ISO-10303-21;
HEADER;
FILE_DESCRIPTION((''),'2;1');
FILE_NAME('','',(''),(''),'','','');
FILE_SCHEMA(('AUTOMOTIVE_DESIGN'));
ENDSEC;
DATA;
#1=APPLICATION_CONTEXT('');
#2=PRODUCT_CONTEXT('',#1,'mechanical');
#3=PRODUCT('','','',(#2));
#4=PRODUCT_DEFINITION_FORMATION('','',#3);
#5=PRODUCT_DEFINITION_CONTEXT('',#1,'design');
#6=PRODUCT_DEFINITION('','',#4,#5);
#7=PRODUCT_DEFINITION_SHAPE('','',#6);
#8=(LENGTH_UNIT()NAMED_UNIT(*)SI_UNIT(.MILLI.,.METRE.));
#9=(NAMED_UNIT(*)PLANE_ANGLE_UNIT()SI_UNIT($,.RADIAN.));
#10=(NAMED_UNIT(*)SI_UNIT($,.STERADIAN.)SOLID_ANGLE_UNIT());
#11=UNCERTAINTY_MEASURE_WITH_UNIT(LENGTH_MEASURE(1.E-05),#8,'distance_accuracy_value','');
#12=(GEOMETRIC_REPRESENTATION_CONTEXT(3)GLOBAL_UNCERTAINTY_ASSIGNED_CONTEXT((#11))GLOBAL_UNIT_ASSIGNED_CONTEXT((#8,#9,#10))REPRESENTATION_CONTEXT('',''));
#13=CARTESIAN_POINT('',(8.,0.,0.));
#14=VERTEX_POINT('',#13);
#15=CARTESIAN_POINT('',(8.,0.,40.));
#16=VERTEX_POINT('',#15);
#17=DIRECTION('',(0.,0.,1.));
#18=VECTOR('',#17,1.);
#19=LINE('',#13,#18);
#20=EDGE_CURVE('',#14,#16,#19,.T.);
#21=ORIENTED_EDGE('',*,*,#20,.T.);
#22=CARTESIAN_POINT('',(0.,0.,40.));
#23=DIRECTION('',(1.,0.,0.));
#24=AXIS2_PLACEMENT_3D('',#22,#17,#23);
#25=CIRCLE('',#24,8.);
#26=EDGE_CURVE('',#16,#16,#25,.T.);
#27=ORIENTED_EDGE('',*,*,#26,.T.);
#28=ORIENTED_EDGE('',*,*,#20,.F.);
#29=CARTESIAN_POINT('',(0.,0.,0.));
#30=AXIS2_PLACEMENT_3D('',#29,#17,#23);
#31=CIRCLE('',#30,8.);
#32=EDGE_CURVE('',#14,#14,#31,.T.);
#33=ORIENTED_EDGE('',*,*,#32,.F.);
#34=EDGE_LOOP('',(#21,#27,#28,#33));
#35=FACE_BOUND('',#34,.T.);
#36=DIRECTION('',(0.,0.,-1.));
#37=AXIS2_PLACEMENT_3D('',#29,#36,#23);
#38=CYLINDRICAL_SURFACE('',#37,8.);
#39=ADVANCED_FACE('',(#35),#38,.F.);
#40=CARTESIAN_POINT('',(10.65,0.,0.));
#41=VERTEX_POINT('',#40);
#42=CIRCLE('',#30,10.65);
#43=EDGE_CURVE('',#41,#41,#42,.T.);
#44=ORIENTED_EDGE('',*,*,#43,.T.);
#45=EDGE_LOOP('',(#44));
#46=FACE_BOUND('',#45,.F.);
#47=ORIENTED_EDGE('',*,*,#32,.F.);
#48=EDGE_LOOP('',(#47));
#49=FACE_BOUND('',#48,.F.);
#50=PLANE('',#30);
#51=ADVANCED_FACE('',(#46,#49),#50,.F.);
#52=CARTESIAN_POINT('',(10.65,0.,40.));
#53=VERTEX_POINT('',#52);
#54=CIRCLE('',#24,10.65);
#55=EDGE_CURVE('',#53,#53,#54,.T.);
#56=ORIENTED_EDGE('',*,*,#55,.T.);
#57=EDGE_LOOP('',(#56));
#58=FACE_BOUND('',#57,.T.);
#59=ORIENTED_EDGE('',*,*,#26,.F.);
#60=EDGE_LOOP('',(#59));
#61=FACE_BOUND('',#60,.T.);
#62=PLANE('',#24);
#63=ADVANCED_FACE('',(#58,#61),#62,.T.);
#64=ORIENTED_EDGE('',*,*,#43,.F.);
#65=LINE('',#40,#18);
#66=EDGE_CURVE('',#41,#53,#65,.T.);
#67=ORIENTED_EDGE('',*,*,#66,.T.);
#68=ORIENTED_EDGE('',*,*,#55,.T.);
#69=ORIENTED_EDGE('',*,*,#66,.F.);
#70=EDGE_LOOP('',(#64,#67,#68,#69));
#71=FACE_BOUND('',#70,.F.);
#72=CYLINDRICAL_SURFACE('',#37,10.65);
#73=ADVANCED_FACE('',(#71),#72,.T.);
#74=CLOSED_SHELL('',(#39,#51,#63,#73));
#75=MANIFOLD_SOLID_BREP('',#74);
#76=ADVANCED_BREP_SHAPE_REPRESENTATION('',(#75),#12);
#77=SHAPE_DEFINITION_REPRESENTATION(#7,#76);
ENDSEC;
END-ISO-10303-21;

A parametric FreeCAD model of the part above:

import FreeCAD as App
import Part
import Sketcher
Q = App.Units.Quantity

doc = App.newDocument("Part")
body = doc.addObject("PartDesign::Body", "Body")

sketch1 = body.newObject("Sketcher::SketchObject", "Sketch")
sketch1.AttachmentSupport = (doc.getObject("XY_Plane"), [""])
sketch1.MapMode = "FlatFace"
sketch1.addGeometry(Part.Circle(App.Vector(0, 0, 0), App.Vector(0, 0, 1), 11), False)
sketch1.addGeometry(Part.Circle(App.Vector(0, 0, 0), App.Vector(0, 0, 1), 8), False)
sketch1.addConstraint(Sketcher.Constraint("Coincident", 0, 3, -1, 1))
sketch1.addConstraint(Sketcher.Constraint("Coincident", 1, 3, -1, 1))
sketch1.addConstraint(Sketcher.Constraint("Diameter", 1, Q("16 mm")))
sketch1.addConstraint(Sketcher.Constraint("Diameter", 0, Q("21.3 mm")))
pad1 = body.newObject("PartDesign::Pad", "Pad")
pad1.Profile = sketch1
pad1.Length = 40

doc.recompute()
